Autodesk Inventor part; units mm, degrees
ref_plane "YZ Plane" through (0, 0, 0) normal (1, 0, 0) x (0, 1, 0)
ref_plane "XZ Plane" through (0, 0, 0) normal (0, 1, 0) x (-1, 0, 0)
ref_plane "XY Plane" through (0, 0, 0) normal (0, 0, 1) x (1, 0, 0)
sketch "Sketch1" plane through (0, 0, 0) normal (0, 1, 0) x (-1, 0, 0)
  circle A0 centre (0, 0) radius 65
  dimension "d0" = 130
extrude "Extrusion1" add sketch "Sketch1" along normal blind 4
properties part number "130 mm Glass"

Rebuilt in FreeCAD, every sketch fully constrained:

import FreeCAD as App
import Part
import Sketcher
Q = App.Units.Quantity

doc = App.newDocument("Part")
body = doc.addObject("PartDesign::Body", "Body")

# Sketch on XZ plane
sketch1 = body.newObject("Sketcher::SketchObject", "Sketch")
sketch1.AttachmentSupport = (doc.getObject("XZ_Plane"), [""])
sketch1.MapMode = "FlatFace"
sketch1.addGeometry(Part.Circle(App.Vector(0, 0, 0), App.Vector(0, 0, 1), 65), False)
sketch1.addConstraint(Sketcher.Constraint("Coincident", 0, 3, -1, 1))
sketch1.addConstraint(Sketcher.Constraint("Diameter", 0, Q("130 mm")))
pad1 = body.newObject("PartDesign::Pad", "Pad")
pad1.Profile = sketch1
pad1.Length = 4
pad1.Reversed = True

doc.recompute()
